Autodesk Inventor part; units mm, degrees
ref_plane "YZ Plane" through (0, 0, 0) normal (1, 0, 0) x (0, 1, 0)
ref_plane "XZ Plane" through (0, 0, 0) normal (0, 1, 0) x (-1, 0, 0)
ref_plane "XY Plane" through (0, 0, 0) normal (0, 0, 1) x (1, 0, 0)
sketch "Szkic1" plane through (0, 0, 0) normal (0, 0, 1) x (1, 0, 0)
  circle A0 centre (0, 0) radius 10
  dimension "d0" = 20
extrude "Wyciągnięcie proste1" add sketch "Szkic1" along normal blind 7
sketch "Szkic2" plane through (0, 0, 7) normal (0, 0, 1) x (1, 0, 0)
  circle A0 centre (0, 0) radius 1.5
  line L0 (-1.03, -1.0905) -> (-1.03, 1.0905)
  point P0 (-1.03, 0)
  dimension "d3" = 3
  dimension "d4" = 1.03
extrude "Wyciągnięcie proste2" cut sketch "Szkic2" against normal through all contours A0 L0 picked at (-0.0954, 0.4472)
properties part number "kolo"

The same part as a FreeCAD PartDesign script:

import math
import FreeCAD as App
import Part
import Sketcher

doc = App.newDocument("Part")
params = doc.addObject("Spreadsheet::Sheet", "Params")
for row, (alias, value) in enumerate([
    ("sketch1_diameter", "20 mm"),
    ("pad1_length", "7 mm"),
    ("sketch2_radius", "1.5 mm"),
], start=1):
    params.set(f"A{row}", alias)
    params.set(f"B{row}", "=" + value)
    params.setAlias(f"B{row}", alias)

body = doc.addObject("PartDesign::Body", "Body")

sketch1 = body.newObject("Sketcher::SketchObject", "Sketch")
sketch1.AttachmentSupport = (doc.getObject("XY_Plane"), [""])
sketch1.MapMode = "FlatFace"
sketch1.addGeometry(Part.Circle(App.Vector(0, 0, 0), App.Vector(0, 0, 1), 10), False)
sketch1.addConstraint([
    Sketcher.Constraint("Coincident", 0, 3, -1, 1),
    Sketcher.Constraint("Diameter", 0, 20.0),
])
sketch1.setExpression("Constraints[1]", "Params.sketch1_diameter")
pad1 = body.newObject("PartDesign::Pad", "Pad")
pad1.Profile = sketch1
pad1.setExpression("Length", "Params.pad1_length")

sketch2 = body.newObject("Sketcher::SketchObject", "Sketch001")
sketch2.AttachmentSupport = (doc.getObject("XY_Plane"), [""])
sketch2.MapMode = "FlatFace"
sketch2.AttachmentOffset = App.Placement(App.Vector(0, 0, 7), App.Rotation())
sketch2.addGeometry([
    Part.ArcOfCircle(Part.Circle(App.Vector(0, 0, 0), App.Vector(0, 0, 1), 1.5), math.radians(-133), math.radians(133)),
    Part.LineSegment(App.Vector(-1, -1.1, 0), App.Vector(-1, 1.1, 0)),
], False)
sketch2.addConstraint([
    Sketcher.Constraint("Coincident", 0, 1, 1, 1),
    Sketcher.Constraint("Coincident", 1, 2, 0, 2),
    Sketcher.Constraint("Vertical", 1),
    Sketcher.Constraint("Coincident", 0, 3, -1, 1),
    Sketcher.Constraint("Radius", 0, 1.5),
    Sketcher.Constraint("DistanceX", 0, 1, -1, 1, 1.03),
])
sketch2.setExpression("Constraints[4]", "Params.sketch2_radius")
pocket1 = body.newObject("PartDesign::Pocket", "Pocket")
pocket1.Profile = sketch2
pocket1.Type = "ThroughAll"

doc.recompute()
